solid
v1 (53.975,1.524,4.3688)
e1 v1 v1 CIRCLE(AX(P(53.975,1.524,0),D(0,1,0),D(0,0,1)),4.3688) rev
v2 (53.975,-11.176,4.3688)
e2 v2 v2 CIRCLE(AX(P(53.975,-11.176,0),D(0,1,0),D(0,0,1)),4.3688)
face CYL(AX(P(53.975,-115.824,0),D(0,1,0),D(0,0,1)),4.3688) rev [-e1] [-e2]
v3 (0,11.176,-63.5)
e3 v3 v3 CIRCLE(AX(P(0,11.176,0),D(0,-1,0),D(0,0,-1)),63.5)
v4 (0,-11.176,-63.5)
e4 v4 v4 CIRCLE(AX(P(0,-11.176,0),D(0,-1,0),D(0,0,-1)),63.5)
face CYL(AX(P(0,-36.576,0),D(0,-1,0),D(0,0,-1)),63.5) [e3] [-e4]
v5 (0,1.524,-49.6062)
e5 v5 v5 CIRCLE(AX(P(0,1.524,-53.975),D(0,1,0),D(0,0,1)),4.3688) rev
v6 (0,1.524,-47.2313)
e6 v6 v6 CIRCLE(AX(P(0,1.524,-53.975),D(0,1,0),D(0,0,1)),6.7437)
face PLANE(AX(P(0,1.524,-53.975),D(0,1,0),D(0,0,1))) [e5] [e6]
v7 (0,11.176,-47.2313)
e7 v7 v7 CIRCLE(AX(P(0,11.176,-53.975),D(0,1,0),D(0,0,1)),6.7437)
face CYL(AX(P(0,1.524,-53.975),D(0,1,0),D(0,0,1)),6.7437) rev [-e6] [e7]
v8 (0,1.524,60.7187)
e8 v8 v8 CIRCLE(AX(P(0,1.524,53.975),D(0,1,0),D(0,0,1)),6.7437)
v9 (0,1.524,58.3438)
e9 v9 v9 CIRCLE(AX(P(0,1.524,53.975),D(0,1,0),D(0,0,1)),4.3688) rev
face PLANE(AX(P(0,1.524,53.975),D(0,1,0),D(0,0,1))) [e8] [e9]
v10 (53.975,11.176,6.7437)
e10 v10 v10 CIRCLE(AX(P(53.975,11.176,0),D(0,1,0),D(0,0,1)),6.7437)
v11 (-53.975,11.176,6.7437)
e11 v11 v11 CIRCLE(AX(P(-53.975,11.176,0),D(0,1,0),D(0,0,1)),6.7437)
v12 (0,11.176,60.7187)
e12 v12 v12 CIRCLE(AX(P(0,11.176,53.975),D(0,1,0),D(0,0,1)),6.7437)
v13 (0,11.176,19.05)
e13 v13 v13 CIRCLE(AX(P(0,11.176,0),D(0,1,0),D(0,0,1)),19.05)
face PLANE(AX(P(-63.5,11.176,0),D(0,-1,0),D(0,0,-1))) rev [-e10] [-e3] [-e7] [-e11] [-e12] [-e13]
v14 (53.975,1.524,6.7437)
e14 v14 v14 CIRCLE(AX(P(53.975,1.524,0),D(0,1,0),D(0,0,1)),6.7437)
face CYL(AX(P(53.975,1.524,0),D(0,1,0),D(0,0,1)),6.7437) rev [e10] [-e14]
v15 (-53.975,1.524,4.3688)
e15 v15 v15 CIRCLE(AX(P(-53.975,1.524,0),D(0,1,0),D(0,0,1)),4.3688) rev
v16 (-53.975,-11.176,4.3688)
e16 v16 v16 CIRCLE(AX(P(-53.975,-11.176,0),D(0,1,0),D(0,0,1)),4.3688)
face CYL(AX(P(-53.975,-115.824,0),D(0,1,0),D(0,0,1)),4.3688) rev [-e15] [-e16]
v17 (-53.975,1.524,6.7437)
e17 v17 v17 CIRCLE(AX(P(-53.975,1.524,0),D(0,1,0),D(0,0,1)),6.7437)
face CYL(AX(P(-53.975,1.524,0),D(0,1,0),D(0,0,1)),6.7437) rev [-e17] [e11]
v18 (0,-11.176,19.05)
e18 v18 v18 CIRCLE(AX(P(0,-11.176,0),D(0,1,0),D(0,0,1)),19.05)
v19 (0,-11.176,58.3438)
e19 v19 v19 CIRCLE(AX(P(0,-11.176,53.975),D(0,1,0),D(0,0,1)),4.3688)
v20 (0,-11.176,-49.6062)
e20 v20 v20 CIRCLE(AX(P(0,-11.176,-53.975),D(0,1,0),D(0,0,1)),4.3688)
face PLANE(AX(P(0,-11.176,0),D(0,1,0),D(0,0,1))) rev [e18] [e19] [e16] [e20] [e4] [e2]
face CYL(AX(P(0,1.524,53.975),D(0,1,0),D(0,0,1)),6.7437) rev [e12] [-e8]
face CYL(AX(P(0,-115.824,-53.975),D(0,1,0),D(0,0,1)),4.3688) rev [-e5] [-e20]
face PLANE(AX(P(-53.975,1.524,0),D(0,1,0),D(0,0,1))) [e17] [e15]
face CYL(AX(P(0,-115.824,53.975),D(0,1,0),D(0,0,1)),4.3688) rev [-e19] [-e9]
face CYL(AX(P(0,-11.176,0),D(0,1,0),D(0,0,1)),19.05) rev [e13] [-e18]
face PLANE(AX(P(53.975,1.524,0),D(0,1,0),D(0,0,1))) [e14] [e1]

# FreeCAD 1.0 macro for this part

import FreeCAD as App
import Part
import Sketcher

V = App.Vector
Q = App.Units.Quantity


def add_polygon(sketch, points):
    """Adds a closed chain of lines whose ends are joined by coincident constraints."""
    first, n = sketch.GeometryCount, len(points)
    for a, b in zip(points, points[1:] + points[:1]):
        sketch.addGeometry(Part.LineSegment(App.Vector(*a, 0), App.Vector(*b, 0)), False)
    for i in range(n):
        sketch.addConstraint(Sketcher.Constraint("Coincident", first + i, 2, first + (i + 1) % n, 1))

doc = App.newDocument("Part")
body = doc.addObject("PartDesign::Body", "Body")

sketch1 = body.newObject("Sketcher::SketchObject", "Sketch")
sketch1.AttachmentSupport = (doc.getObject("XY_Plane"), [""])
sketch1.MapMode = "FlatFace"
add_polygon(sketch1, [(-64, -11), (0, -11), (0, 11), (-64, 11)])
sketch1.addConstraint([
    Sketcher.Constraint("Horizontal", 0),
    Sketcher.Constraint("Vertical", 1),
    Sketcher.Constraint("Horizontal", 2),
    Sketcher.Constraint("Vertical", 3),
    Sketcher.Constraint("Symmetric", 0, 2, 1, 2, -1, 1),
    Sketcher.Constraint("DistanceX", 0, 1, 0, 2, Q("2.5 in")),
    Sketcher.Constraint("DistanceY", 1, 1, 1, 2, Q("0.88 in")),
])
revolution = body.newObject("PartDesign::Revolution", "Revolution")
revolution.Profile = sketch1
revolution.ReferenceAxis = (sketch1, ["V_Axis"])
revolution.Angle = 360

sketch2 = body.newObject("Sketcher::SketchObject", "Sketch001")
sketch2.AttachmentSupport = (doc.getObject("XZ_Plane"), [""])
sketch2.MapMode = "FlatFace"
sketch2.AttachmentOffset = App.Placement(V(0, 0, -0.44 * 25.4), App.Rotation())
sketch2.addGeometry(Part.Circle(V(0, 0, 0), V(0, 0, 1), 19), False)
sketch2.addConstraint([
    Sketcher.Constraint("Coincident", 0, 3, -1, 1),
    Sketcher.Constraint("Diameter", 0, Q("1.5 in")),
])
pocket1 = body.newObject("PartDesign::Pocket", "Pocket")
pocket1.Profile = sketch2
pocket1.Type = "ThroughAll"
pocket1.Reversed = True

sketch3 = body.newObject("Sketcher::SketchObject", "Sketch002")
sketch3.AttachmentSupport = (doc.getObject("XZ_Plane"), [""])
sketch3.MapMode = "FlatFace"
sketch3.AttachmentOffset = App.Placement(V(0, 0, -0.44 * 25.4), App.Rotation())
sketch3.addGeometry(Part.Circle(V(-54, 0, 0), V(0, 0, 1), 4.4), False)
sketch3.addConstraint([
    Sketcher.Constraint("PointOnObject", 0, 3, -1),
    Sketcher.Constraint("Diameter", 0, Q("0.344 in")),
    Sketcher.Constraint("DistanceX", 0, 3, -1, 1, Q("2.125 in")),
])
pocket2 = body.newObject("PartDesign::Pocket", "Pocket001")
pocket2.Profile = sketch3
pocket2.Length = Q("5 in")
pocket2.Reversed = True

sketch4 = body.newObject("Sketcher::SketchObject", "Sketch003")
sketch4.AttachmentSupport = (doc.getObject("XZ_Plane"), [""])
sketch4.MapMode = "FlatFace"
sketch4.AttachmentOffset = App.Placement(V(0, 0, -0.44 * 25.4), App.Rotation())
sketch4.addGeometry(Part.Circle(V(-54, 0, 0), V(0, 0, 1), 7), False)
sketch4.addConstraint([
    Sketcher.Constraint("PointOnObject", 0, 3, -1),
    Sketcher.Constraint("Diameter", 0, Q("0.531 in")),
    Sketcher.Constraint("DistanceX", 0, 3, -1, 1, Q("2.125 in")),
])
pocket3 = body.newObject("PartDesign::Pocket", "Pocket002")
pocket3.Profile = sketch4
pocket3.Length = Q("0.38 in")
pocket3.Reversed = True

sketch5 = body.newObject("Sketcher::SketchObject", "Sketch004")
sketch5.AttachmentSupport = (doc.getObject("XZ_Plane"), [""])
sketch5.MapMode = "FlatFace"
sketch5.AttachmentOffset = App.Placement(V(0, 0, -0.44 * 25.4), App.Rotation())
sketch5.addGeometry([
    Part.Circle(V(0, 54, 0), V(0, 0, 1), 4.4),
    Part.Circle(V(54, 0, 0), V(0, 0, 1), 4.4),
    Part.Circle(V(0, -54, 0), V(0, 0, 1), 4.4),
], False)
sketch5.addConstraint([
    Sketcher.Constraint("Equal", 0, 1),
    Sketcher.Constraint("Equal", 1, 2),
    Sketcher.Constraint("Symmetric", 0, 3, 2, 3, -1, 1),
    Sketcher.Constraint("PointOnObject", 0, 3, -2),
    Sketcher.Constraint("PointOnObject", 1, 3, -1),
    Sketcher.Constraint("Diameter", 0, Q("0.344 in")),
    Sketcher.Constraint("DistanceY", 2, 3, 0, 3, Q("4.25 in")),
    Sketcher.Constraint("DistanceX", -1, 1, 1, 3, Q("2.125 in")),
])
pocket4 = body.newObject("PartDesign::Pocket", "Pocket003")
pocket4.Profile = sketch5
pocket4.Length = Q("5 in")
pocket4.Reversed = True

sketch6 = body.newObject("Sketcher::SketchObject", "Sketch005")
sketch6.AttachmentSupport = (doc.getObject("XZ_Plane"), [""])
sketch6.MapMode = "FlatFace"
sketch6.AttachmentOffset = App.Placement(V(0, 0, -0.44 * 25.4), App.Rotation())
sketch6.addGeometry([
    Part.Circle(V(0, 54, 0), V(0, 0, 1), 7),
    Part.Circle(V(54, 0, 0), V(0, 0, 1), 7),
    Part.Circle(V(0, -54, 0), V(0, 0, 1), 7),
], False)
sketch6.addConstraint([
    Sketcher.Constraint("Equal", 0, 1),
    Sketcher.Constraint("Equal", 1, 2),
    Sketcher.Constraint("Symmetric", 0, 3, 2, 3, -1, 1),
    Sketcher.Constraint("PointOnObject", 0, 3, -2),
    Sketcher.Constraint("PointOnObject", 1, 3, -1),
    Sketcher.Constraint("Diameter", 0, Q("0.531 in")),
    Sketcher.Constraint("DistanceY", 2, 3, 0, 3, Q("4.25 in")),
    Sketcher.Constraint("DistanceX", -1, 1, 1, 3, Q("2.125 in")),
])
pocket5 = body.newObject("PartDesign::Pocket", "Pocket004")
pocket5.Profile = sketch6
pocket5.Length = Q("0.38 in")
pocket5.Reversed = True

doc.recompute()
